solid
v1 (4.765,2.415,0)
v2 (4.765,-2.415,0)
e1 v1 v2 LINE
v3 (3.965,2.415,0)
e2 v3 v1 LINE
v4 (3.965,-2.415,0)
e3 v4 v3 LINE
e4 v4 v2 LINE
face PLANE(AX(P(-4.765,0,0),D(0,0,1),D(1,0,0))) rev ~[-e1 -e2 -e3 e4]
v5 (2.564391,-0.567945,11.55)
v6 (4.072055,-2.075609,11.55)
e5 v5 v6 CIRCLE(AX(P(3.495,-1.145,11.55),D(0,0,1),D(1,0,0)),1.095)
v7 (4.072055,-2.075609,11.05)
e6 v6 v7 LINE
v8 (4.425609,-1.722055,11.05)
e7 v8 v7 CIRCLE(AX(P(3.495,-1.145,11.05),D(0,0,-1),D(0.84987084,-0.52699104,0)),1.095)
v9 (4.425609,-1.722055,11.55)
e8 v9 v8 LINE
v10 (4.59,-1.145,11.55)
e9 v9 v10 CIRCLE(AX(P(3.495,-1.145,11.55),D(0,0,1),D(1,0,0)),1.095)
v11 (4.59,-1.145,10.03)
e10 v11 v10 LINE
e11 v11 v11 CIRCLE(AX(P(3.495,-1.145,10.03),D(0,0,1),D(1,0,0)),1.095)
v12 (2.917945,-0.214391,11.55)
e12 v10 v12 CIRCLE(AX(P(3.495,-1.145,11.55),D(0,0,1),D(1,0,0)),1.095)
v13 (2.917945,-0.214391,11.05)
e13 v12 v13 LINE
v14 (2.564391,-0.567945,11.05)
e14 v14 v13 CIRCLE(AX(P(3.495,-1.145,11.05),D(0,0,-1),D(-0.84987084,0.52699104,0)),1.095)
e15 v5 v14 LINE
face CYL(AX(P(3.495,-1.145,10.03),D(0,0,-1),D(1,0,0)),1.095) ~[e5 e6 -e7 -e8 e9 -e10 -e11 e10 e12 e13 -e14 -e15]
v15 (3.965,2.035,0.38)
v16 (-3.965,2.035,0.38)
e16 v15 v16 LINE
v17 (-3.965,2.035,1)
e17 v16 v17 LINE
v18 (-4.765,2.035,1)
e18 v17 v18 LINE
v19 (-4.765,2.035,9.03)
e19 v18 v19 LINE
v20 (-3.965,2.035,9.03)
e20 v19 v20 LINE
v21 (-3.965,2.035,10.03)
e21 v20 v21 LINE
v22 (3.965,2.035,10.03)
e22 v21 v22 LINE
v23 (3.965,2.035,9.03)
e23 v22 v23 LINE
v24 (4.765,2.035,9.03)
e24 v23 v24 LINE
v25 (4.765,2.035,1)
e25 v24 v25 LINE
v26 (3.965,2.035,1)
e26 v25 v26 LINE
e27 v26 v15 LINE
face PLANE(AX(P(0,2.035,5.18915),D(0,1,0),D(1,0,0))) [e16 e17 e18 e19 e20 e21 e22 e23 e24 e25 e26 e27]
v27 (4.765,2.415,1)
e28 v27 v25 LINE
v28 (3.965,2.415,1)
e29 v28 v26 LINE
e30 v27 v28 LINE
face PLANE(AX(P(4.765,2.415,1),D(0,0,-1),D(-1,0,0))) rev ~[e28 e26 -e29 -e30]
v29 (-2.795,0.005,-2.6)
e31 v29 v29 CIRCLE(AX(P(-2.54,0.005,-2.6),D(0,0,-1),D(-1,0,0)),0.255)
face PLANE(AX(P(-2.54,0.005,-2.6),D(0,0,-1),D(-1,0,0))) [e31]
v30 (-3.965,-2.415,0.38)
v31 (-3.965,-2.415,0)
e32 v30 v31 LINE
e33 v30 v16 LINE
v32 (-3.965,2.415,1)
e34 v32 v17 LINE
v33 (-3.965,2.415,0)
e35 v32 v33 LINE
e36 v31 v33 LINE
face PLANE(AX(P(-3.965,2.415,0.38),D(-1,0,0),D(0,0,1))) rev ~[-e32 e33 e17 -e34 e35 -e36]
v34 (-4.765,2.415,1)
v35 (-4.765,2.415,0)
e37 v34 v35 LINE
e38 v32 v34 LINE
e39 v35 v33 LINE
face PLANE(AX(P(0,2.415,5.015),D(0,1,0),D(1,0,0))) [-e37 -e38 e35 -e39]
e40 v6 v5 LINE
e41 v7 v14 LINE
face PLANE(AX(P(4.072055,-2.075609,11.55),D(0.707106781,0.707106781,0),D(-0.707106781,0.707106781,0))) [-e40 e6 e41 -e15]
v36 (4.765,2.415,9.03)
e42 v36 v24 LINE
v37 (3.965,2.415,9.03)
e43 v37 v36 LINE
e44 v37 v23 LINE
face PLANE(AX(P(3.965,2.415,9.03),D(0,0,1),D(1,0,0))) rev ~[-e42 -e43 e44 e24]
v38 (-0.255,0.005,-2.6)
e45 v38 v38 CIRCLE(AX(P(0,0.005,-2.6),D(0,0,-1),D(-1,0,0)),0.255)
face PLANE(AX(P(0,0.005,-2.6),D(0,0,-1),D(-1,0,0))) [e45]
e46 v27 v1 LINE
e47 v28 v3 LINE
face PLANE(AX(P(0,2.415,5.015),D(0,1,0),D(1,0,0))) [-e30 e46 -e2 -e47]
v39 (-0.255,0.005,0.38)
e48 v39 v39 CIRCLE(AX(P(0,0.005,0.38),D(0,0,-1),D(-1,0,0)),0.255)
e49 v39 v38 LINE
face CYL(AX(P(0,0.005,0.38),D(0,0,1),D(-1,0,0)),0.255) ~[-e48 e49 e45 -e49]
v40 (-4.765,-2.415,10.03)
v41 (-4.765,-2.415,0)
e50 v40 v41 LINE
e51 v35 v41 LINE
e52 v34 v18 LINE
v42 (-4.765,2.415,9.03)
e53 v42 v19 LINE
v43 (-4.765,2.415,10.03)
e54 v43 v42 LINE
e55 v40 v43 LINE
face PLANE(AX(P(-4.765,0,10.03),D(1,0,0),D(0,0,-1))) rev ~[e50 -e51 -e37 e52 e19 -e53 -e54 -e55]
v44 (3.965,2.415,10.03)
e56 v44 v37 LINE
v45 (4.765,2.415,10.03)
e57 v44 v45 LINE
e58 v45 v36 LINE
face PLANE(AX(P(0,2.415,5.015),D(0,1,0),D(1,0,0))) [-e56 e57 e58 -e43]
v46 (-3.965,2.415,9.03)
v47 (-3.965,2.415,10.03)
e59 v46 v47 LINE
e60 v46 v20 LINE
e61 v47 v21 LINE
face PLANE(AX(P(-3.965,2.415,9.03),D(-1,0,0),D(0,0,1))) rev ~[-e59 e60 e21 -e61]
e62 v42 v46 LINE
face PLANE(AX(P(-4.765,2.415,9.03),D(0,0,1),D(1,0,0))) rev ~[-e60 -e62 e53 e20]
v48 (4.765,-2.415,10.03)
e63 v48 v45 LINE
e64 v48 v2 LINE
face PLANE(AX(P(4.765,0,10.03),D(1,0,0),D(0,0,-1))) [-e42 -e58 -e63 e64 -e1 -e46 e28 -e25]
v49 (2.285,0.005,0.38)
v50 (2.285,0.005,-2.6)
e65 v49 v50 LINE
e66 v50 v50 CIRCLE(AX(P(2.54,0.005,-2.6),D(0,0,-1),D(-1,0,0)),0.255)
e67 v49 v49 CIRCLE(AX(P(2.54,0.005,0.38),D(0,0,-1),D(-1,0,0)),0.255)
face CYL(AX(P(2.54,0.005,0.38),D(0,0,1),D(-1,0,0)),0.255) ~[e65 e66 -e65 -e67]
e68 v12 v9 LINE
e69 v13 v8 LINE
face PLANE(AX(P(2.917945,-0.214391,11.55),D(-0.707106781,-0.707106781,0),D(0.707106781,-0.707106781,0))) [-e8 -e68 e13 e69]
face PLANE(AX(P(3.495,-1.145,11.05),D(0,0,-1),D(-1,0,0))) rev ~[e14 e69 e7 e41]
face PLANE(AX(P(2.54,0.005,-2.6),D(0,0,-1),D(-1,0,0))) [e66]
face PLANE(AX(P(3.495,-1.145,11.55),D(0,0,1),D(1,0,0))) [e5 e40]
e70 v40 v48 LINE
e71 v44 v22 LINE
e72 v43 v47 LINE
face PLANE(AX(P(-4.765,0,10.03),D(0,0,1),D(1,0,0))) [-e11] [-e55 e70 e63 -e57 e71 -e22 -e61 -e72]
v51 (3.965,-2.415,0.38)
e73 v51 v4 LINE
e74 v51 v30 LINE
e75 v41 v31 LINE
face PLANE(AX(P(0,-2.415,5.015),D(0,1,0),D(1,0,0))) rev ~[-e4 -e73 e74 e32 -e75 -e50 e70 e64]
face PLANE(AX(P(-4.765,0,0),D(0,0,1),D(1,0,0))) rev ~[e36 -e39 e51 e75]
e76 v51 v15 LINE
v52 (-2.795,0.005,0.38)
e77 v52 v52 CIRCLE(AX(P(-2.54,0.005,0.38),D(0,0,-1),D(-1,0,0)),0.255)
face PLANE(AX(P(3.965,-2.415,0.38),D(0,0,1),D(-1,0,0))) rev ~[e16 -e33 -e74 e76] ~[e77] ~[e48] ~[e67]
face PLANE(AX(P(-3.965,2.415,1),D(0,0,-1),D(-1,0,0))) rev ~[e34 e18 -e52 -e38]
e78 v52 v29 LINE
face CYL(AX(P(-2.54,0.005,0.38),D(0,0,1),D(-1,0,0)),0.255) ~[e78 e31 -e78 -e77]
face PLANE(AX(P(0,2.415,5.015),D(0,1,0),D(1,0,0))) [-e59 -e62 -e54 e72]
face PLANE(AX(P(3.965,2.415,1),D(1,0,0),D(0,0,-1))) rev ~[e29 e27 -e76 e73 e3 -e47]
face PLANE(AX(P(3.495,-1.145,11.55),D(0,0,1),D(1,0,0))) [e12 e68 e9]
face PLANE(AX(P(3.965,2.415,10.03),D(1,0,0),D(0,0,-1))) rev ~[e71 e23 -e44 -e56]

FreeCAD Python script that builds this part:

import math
import FreeCAD as App
import Part
import Sketcher

V = App.Vector
Q = App.Units.Quantity

doc = App.newDocument("Part")
params = doc.addObject("Spreadsheet::Sheet", "Params")
for row, (alias, value) in enumerate([
    ("sketch1_width", "9.53 mm"),
    ("sketch1_height", "10.03 mm"),
    ("pad1_length", "4.83 mm"),
    ("sketch2_height", "1 mm"),
    ("sketch2_width", "7.93 mm"),
    ("pocket1_length", "4.83 mm"),
    ("sketch3_height", "1 mm"),
    ("sketch3_width", "0.8 mm"),
    ("sketch3_width2", "7.93 mm"),
    ("sketch3_height2", "0.62 mm"),
    ("sketch3_height3", "8.03 mm"),
    ("pocket2_length", "0.38 mm"),
    ("sketch4_diameter", "2.19 mm"),
    ("pad2_length", "1.52 mm"),
    ("pocket3_length", "0.5 mm"),
    ("sketch6_diameter", "0.51 mm"),
    ("pad3_length", "2.98 mm"),
], start=1):
    params.set(f"A{row}", alias)
    params.set(f"B{row}", "=" + value)
    params.setAlias(f"B{row}", alias)

body = doc.addObject("PartDesign::Body", "Body")

sketch1 = doc.addObject("Sketcher::SketchObject", "Sketch")
body.addObject(sketch1)
sketch1.AttachmentSupport = (doc.XZ_Plane, [""])
sketch1.MapMode = "FlatFace"
sketch1.addGeometry(Part.LineSegment(V(-5, 0, 0), V(-5, 10, 0)), False)
sketch1.addGeometry(Part.LineSegment(V(-5, 10, 0), V(5, 10, 0)), False)
sketch1.addGeometry(Part.LineSegment(V(5, 10, 0), V(5, 0, 0)), False)
sketch1.addGeometry(Part.LineSegment(V(5, 0, 0), V(-5, 0, 0)), False)
sketch1.addConstraint(Sketcher.Constraint("Coincident", 0, 2, 1, 1))
sketch1.addConstraint(Sketcher.Constraint("Coincident", 1, 2, 2, 1))
sketch1.addConstraint(Sketcher.Constraint("Coincident", 2, 2, 3, 1))
sketch1.addConstraint(Sketcher.Constraint("Coincident", 3, 2, 0, 1))
sketch1.addConstraint(Sketcher.Constraint("Vertical", 0))
sketch1.addConstraint(Sketcher.Constraint("Horizontal", 1))
sketch1.addConstraint(Sketcher.Constraint("Vertical", 2))
sketch1.addConstraint(Sketcher.Constraint("Horizontal", 3))
sketch1.addConstraint(Sketcher.Constraint("Symmetric", 2, 2, 3, 2, -1, 1))
sketch1.addConstraint(Sketcher.Constraint("DistanceX", 1, 1, 1, 2, Q("9.53 mm")))
sketch1.addConstraint(Sketcher.Constraint("DistanceY", 0, 1, 0, 2, Q("10.03 mm")))
sketch1.setExpression("Constraints[9]", "Params.sketch1_width")
sketch1.setExpression("Constraints[10]", "Params.sketch1_height")
pad1 = doc.addObject("PartDesign::Pad", "Pad")
body.addObject(pad1)
pad1.Profile = sketch1
pad1.setExpression("Length", "Params.pad1_length")
pad1.Midplane = True

sketch2 = doc.addObject("Sketcher::SketchObject", "Sketch001")
body.addObject(sketch2)
sketch2.AttachmentSupport = (doc.XZ_Plane, [""])
sketch2.MapMode = "FlatFace"
sketch2.AttachmentOffset = App.Placement(V(0, 0, 2.415), App.Rotation())
sketch2.addGeometry(Part.LineSegment(V(4, -0.6, 0), V(4, 0.4, 0)), False)
sketch2.addGeometry(Part.LineSegment(V(4, 0.4, 0), V(-4, 0.4, 0)), False)
sketch2.addGeometry(Part.LineSegment(V(-4, 0.4, 0), V(-4, -0.6, 0)), False)
sketch2.addGeometry(Part.LineSegment(V(-4, -0.6, 0), V(4, -0.6, 0)), False)
sketch2.addConstraint(Sketcher.Constraint("Coincident", 0, 2, 1, 1))
sketch2.addConstraint(Sketcher.Constraint("Coincident", 1, 2, 2, 1))
sketch2.addConstraint(Sketcher.Constraint("Coincident", 2, 2, 3, 1))
sketch2.addConstraint(Sketcher.Constraint("Coincident", 3, 2, 0, 1))
sketch2.addConstraint(Sketcher.Constraint("Vertical", 0))
sketch2.addConstraint(Sketcher.Constraint("Horizontal", 1))
sketch2.addConstraint(Sketcher.Constraint("Vertical", 2))
sketch2.addConstraint(Sketcher.Constraint("Horizontal", 3))
sketch2.addConstraint(Sketcher.Constraint("DistanceY", 0, 1, 0, 2, Q("1 mm")))
sketch2.addConstraint(Sketcher.Constraint("DistanceX", 1, 2, 1, 1, Q("7.93 mm")))
sketch2.addConstraint(Sketcher.Constraint("DistanceY", -1, 1, 0, 2, Q("0.38 mm")))
sketch2.addConstraint(Sketcher.Constraint("DistanceX", -1, 1, 0, 2, Q("3.965 mm")))
sketch2.setExpression("Constraints[8]", "Params.sketch2_height")
sketch2.setExpression("Constraints[9]", "Params.sketch2_width")
pocket1 = doc.addObject("PartDesign::Pocket", "Pocket")
body.addObject(pocket1)
pocket1.Profile = sketch2
pocket1.setExpression("Length", "Params.pocket1_length")

sketch3 = doc.addObject("Sketcher::SketchObject", "Sketch002")
body.addObject(sketch3)
sketch3.AttachmentSupport = (doc.XZ_Plane, [""])
sketch3.MapMode = "FlatFace"
sketch3.AttachmentOffset = App.Placement(V(0, 0, -2.415), App.Rotation())
sketch3.addGeometry(Part.LineSegment(V(4, 0.4, 0), V(-4, 0.4, 0)), False)
sketch3.addGeometry(Part.LineSegment(V(-4, 0.4, 0), V(-4, 1, 0)), False)
sketch3.addGeometry(Part.LineSegment(V(-4, 1, 0), V(-4.8, 1, 0)), False)
sketch3.addGeometry(Part.LineSegment(V(-4.8, 1, 0), V(-4.8, 9, 0)), False)
sketch3.addGeometry(Part.LineSegment(V(-4.8, 9, 0), V(-4, 9, 0)), False)
sketch3.addGeometry(Part.LineSegment(V(-4, 9, 0), V(-4, 10, 0)), False)
sketch3.addGeometry(Part.LineSegment(V(-4, 10, 0), V(4, 10, 0)), False)
sketch3.addGeometry(Part.LineSegment(V(4, 10, 0), V(4, 9, 0)), False)
sketch3.addGeometry(Part.LineSegment(V(4, 9, 0), V(4.8, 9, 0)), False)
sketch3.addGeometry(Part.LineSegment(V(4.8, 9, 0), V(4.8, 1, 0)), False)
sketch3.addGeometry(Part.LineSegment(V(4.8, 1, 0), V(4, 1, 0)), False)
sketch3.addGeometry(Part.LineSegment(V(4, 1, 0), V(4, 0.4, 0)), False)
sketch3.addConstraint(Sketcher.Constraint("Coincident", 0, 2, 1, 1))
sketch3.addConstraint(Sketcher.Constraint("Coincident", 1, 2, 2, 1))
sketch3.addConstraint(Sketcher.Constraint("Coincident", 2, 2, 3, 1))
sketch3.addConstraint(Sketcher.Constraint("Coincident", 3, 2, 4, 1))
sketch3.addConstraint(Sketcher.Constraint("Coincident", 4, 2, 5, 1))
sketch3.addConstraint(Sketcher.Constraint("Coincident", 5, 2, 6, 1))
sketch3.addConstraint(Sketcher.Constraint("Coincident", 6, 2, 7, 1))
sketch3.addConstraint(Sketcher.Constraint("Coincident", 7, 2, 8, 1))
sketch3.addConstraint(Sketcher.Constraint("Coincident", 8, 2, 9, 1))
sketch3.addConstraint(Sketcher.Constraint("Coincident", 9, 2, 10, 1))
sketch3.addConstraint(Sketcher.Constraint("Coincident", 10, 2, 11, 1))
sketch3.addConstraint(Sketcher.Constraint("Coincident", 11, 2, 0, 1))
sketch3.addConstraint(Sketcher.Constraint("Horizontal", 0))
sketch3.addConstraint(Sketcher.Constraint("Vertical", 1))
sketch3.addConstraint(Sketcher.Constraint("Horizontal", 2))
sketch3.addConstraint(Sketcher.Constraint("Vertical", 3))
sketch3.addConstraint(Sketcher.Constraint("Horizontal", 4))
sketch3.addConstraint(Sketcher.Constraint("Vertical", 5))
sketch3.addConstraint(Sketcher.Constraint("Horizontal", 6))
sketch3.addConstraint(Sketcher.Constraint("Vertical", 7))
sketch3.addConstraint(Sketcher.Constraint("Horizontal", 8))
sketch3.addConstraint(Sketcher.Constraint("Vertical", 9))
sketch3.addConstraint(Sketcher.Constraint("Horizontal", 10))
sketch3.addConstraint(Sketcher.Constraint("Vertical", 11))
sketch3.addConstraint(Sketcher.Constraint("Symmetric", 4, 2, 7, 2, -2))
sketch3.addConstraint(Sketcher.Constraint("Symmetric", 2, 2, 9, 2, -2))
sketch3.addConstraint(Sketcher.Constraint("Vertical", 1, 2, 4, 2))
sketch3.addConstraint(Sketcher.Constraint("Vertical", 7, 2, 10, 2))
sketch3.addConstraint(Sketcher.Constraint("DistanceY", 5, 1, 5, 2, Q("1 mm")))
sketch3.addConstraint(Sketcher.Constraint("DistanceX", 2, 2, 2, 1, Q("0.8 mm")))
sketch3.addConstraint(Sketcher.Constraint("DistanceY", -1, 1, 1, 2, Q("1 mm")))
sketch3.addConstraint(Sketcher.Constraint("DistanceX", 0, 2, 0, 1, Q("7.93 mm")))
sketch3.addConstraint(Sketcher.Constraint("DistanceY", 1, 1, 1, 2, Q("0.62 mm")))
sketch3.addConstraint(Sketcher.Constraint("DistanceY", 3, 1, 3, 2, Q("8.03 mm")))
sketch3.setExpression("Constraints[28]", "Params.sketch3_height")
sketch3.setExpression("Constraints[29]", "Params.sketch3_width")
sketch3.setExpression("Constraints[31]", "Params.sketch3_width2")
sketch3.setExpression("Constraints[32]", "Params.sketch3_height2")
sketch3.setExpression("Constraints[33]", "Params.sketch3_height3")
pocket2 = doc.addObject("PartDesign::Pocket", "Pocket001")
body.addObject(pocket2)
pocket2.Profile = sketch3
pocket2.setExpression("Length", "Params.pocket2_length")
pocket2.Reversed = True

sketch4 = doc.addObject("Sketcher::SketchObject", "Sketch003")
body.addObject(sketch4)
sketch4.AttachmentSupport = (doc.XY_Plane, [""])
sketch4.MapMode = "FlatFace"
sketch4.AttachmentOffset = App.Placement(V(0, 0, 10.03), App.Rotation())
sketch4.addGeometry(Part.Circle(V(3.5, -1.1, 0), V(0, 0, 1), 1.1), False)
sketch4.addConstraint(Sketcher.Constraint("Diameter", 0, Q("2.19 mm")))
sketch4.addConstraint(Sketcher.Constraint("DistanceX", -1, 1, 0, 3, Q("3.495 mm")))
sketch4.addConstraint(Sketcher.Constraint("DistanceY", 0, 3, -1, 1, Q("1.145 mm")))
sketch4.setExpression("Constraints[0]", "Params.sketch4_diameter")
pad2 = doc.addObject("PartDesign::Pad", "Pad001")
body.addObject(pad2)
pad2.Profile = sketch4
pad2.setExpression("Length", "Params.pad2_length")

sketch5 = doc.addObject("Sketcher::SketchObject", "Sketch004")
body.addObject(sketch5)
sketch5.AttachmentSupport = (doc.XY_Plane, [""])
sketch5.MapMode = "FlatFace"
sketch5.AttachmentOffset = App.Placement(V(0, 0, 11.55), App.Rotation())
sketch5.addGeometry(Part.LineSegment(V(4.43, -1.72, 0), V(2.92, -0.21, 0)), False)
sketch5.addGeometry(Part.ArcOfCircle(Part.Circle(V(3.5, -1.15, 0), V(0, 0, 1), 1.1), math.radians(122), math.radians(148)), False)
sketch5.addGeometry(Part.LineSegment(V(2.56, -0.57, 0), V(4.07, -2.08, 0)), False)
sketch5.addGeometry(Part.ArcOfCircle(Part.Circle(V(3.49, -1.14, 0), V(0, 0, 1), 1.1), math.radians(-58), math.radians(-32)), False)
sketch5.addConstraint(Sketcher.Constraint("Coincident", 0, 2, 1, 1))
sketch5.addConstraint(Sketcher.Constraint("Coincident", 1, 2, 2, 1))
sketch5.addConstraint(Sketcher.Constraint("Coincident", 2, 2, 3, 1))
sketch5.addConstraint(Sketcher.Constraint("Coincident", 3, 2, 0, 1))
sketch5.addConstraint(Sketcher.Constraint("Coincident", 3, 3, 1, 3))
sketch5.addConstraint(Sketcher.Constraint("Equal", 1, 3))
sketch5.addConstraint(Sketcher.Constraint("Parallel", 0, 2))
sketch5.addConstraint(Sketcher.Constraint("Equal", 0, 2))
sketch5.addConstraint(Sketcher.Constraint("Angle", 0, Q("135 deg")))
sketch5.addConstraint(Sketcher.Constraint("Radius", 1, Q("1.095 mm")))
sketch5.addConstraint(Sketcher.Constraint("DistanceX", -1, 1, 1, 3, Q("3.495 mm")))
sketch5.addConstraint(Sketcher.Constraint("DistanceY", 1, 3, -1, 1, Q("1.145 mm")))
sketch5.addConstraint(Sketcher.Constraint("Distance", 0, Q("2.132159 mm")))
pocket3 = doc.addObject("PartDesign::Pocket", "Pocket002")
body.addObject(pocket3)
pocket3.Profile = sketch5
pocket3.setExpression("Length", "Params.pocket3_length")

sketch6 = doc.addObject("Sketcher::SketchObject", "Sketch005")
body.addObject(sketch6)
sketch6.AttachmentSupport = (doc.XY_Plane, [""])
sketch6.MapMode = "FlatFace"
sketch6.AttachmentOffset = App.Placement(V(0, 0, 0.38), App.Rotation())
sketch6.addGeometry(Part.Circle(V(0, 0.01, 0), V(0, 0, 1), 0.26), False)
sketch6.addGeometry(Part.Circle(V(2.54, 0.01, 0), V(0, 0, 1), 0.26), False)
sketch6.addGeometry(Part.Circle(V(-2.54, 0.01, 0), V(0, 0, 1), 0.26), False)
sketch6.addConstraint(Sketcher.Constraint("Equal", 0, 1))
sketch6.addConstraint(Sketcher.Constraint("Equal", 1, 2))
sketch6.addConstraint(Sketcher.Constraint("Symmetric", 1, 3, 2, 3, -2))
sketch6.addConstraint(Sketcher.Constraint("PointOnObject", 0, 3, -2))
sketch6.addConstraint(Sketcher.Constraint("Horizontal", 0, 3, 1, 3))
sketch6.addConstraint(Sketcher.Constraint("Diameter", 0, Q("0.51 mm")))
sketch6.addConstraint(Sketcher.Constraint("DistanceX", -1, 1, 1, 3, Q("2.54 mm")))
sketch6.addConstraint(Sketcher.Constraint("DistanceY", -1, 1, 0, 3, Q("0.005 mm")))
sketch6.setExpression("Constraints[5]", "Params.sketch6_diameter")
pad3 = doc.addObject("PartDesign::Pad", "Pad002")
body.addObject(pad3)
pad3.Profile = sketch6
pad3.setExpression("Length", "Params.pad3_length")
pad3.Reversed = True

doc.recompute()
